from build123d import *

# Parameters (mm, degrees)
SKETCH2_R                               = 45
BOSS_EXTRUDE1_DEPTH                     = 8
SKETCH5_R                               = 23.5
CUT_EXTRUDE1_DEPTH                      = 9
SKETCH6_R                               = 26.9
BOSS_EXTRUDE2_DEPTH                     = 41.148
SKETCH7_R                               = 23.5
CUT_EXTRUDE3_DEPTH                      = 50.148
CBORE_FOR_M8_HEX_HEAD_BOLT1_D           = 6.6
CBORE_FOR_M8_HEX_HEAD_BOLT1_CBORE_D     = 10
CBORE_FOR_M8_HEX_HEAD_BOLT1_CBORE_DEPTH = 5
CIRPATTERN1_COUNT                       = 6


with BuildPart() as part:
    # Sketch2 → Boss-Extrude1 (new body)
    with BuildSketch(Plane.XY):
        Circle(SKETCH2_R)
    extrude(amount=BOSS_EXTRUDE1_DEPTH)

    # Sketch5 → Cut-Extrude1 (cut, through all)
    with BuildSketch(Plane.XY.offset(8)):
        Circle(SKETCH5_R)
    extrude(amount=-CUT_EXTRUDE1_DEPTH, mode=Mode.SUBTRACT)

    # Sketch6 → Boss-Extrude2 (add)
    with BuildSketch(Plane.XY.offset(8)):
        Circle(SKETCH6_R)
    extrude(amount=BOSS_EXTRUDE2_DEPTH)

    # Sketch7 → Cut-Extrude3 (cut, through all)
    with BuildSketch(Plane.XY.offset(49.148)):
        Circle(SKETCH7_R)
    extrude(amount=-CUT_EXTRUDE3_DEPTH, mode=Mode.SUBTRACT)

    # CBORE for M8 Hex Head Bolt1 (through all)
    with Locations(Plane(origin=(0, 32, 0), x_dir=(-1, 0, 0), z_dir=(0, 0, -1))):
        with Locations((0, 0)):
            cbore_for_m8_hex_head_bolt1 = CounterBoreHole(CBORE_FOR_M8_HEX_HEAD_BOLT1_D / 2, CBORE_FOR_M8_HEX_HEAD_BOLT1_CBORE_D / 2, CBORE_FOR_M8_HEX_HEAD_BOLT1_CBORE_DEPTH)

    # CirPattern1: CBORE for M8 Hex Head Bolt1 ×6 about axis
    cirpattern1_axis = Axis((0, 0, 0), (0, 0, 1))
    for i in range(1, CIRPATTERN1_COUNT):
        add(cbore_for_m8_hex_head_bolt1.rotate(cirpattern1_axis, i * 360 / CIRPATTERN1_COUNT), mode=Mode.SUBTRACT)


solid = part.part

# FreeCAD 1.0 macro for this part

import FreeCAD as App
import Part
import Sketcher
from FreeCAD import Vector

doc = App.newDocument("Part")
body = doc.addObject("PartDesign::Body", "Body")

# Sketch on XY plane
sketch1 = body.newObject("Sketcher::SketchObject", "Sketch")
sketch1.AttachmentSupport = (doc.getObject("XY_Plane"), [""])
sketch1.MapMode = "FlatFace"
sketch1.addGeometry(Part.Circle(Vector(0, 0, 0), Vector(0, 0, 1), 45), False)
sketch1.addConstraint([
    Sketcher.Constraint("Coincident", 0, 3, -1, 1),
    Sketcher.Constraint("Diameter", 0, 90.0),
])
pad1 = body.newObject("PartDesign::Pad", "Pad")
pad1.Profile = sketch1
pad1.Length = 8

# Sketch on XY plane
sketch2 = body.newObject("Sketcher::SketchObject", "Sketch001")
sketch2.AttachmentSupport = (doc.getObject("XY_Plane"), [""])
sketch2.MapMode = "FlatFace"
sketch2.AttachmentOffset = App.Placement(Vector(0, 0, 8), App.Rotation())
sketch2.addGeometry(Part.Circle(Vector(0, 0, 0), Vector(0, 0, 1), 24), False)
sketch2.addConstraint([
    Sketcher.Constraint("Coincident", 0, 3, -1, 1),
    Sketcher.Constraint("Diameter", 0, 47.0),
])
pocket1 = body.newObject("PartDesign::Pocket", "Pocket")
pocket1.Profile = sketch2
pocket1.Type = "ThroughAll"

# Sketch on XY plane
sketch3 = body.newObject("Sketcher::SketchObject", "Sketch002")
sketch3.AttachmentSupport = (doc.getObject("XY_Plane"), [""])
sketch3.MapMode = "FlatFace"
sketch3.AttachmentOffset = App.Placement(Vector(0, 0, 8), App.Rotation())
sketch3.addGeometry(Part.Circle(Vector(0, 0, 0), Vector(0, 0, 1), 27), False)
sketch3.addConstraint([
    Sketcher.Constraint("Coincident", 0, 3, -1, 1),
    Sketcher.Constraint("Diameter", 0, 53.8),
])
pad2 = body.newObject("PartDesign::Pad", "Pad001")
pad2.Profile = sketch3
pad2.Length = 41.148

# Sketch on XY plane
sketch4 = body.newObject("Sketcher::SketchObject", "Sketch003")
sketch4.AttachmentSupport = (doc.getObject("XY_Plane"), [""])
sketch4.MapMode = "FlatFace"
sketch4.AttachmentOffset = App.Placement(Vector(0, 0, 49.148), App.Rotation())
sketch4.addGeometry(Part.Circle(Vector(0, 0, 0), Vector(0, 0, 1), 24), False)
sketch4.addConstraint([
    Sketcher.Constraint("Coincident", 0, 3, -1, 1),
    Sketcher.Constraint("Diameter", 0, 47.0),
])
pocket2 = body.newObject("PartDesign::Pocket", "Pocket001")
pocket2.Profile = sketch4
pocket2.Type = "ThroughAll"

# Sketch on XY plane
sketch5 = body.newObject("Sketcher::SketchObject", "Sketch004")
sketch5.AttachmentSupport = (doc.getObject("XY_Plane"), [""])
sketch5.MapMode = "FlatFace"
sketch5.addGeometry(Part.Circle(Vector(0, 32, 0), Vector(0, 0, 1), 3.3), False)
sketch5.addConstraint([
    Sketcher.Constraint("PointOnObject", 0, 3, -2),
    Sketcher.Constraint("Diameter", 0, 6.6),
    Sketcher.Constraint("DistanceY", -1, 1, 0, 3, 32.0),
])
doc.recompute()
hole = body.newObject("PartDesign::Hole", "Hole")
hole.Profile = sketch5
hole.ThreadType = "None"
hole.Diameter = 6.6
hole.DepthType = "ThroughAll"
hole.HoleCutType = "Counterbore"
hole.HoleCutDiameter = 10
hole.HoleCutDepth = 5
hole.Reversed = True
doc.recompute()

polarpattern = body.newObject("PartDesign::PolarPattern", "PolarPattern")
polarpattern.Originals = [hole]
polarpattern.Axis = (doc.getObject("Z_Axis"), [""])
polarpattern.Angle = 360
polarpattern.Occurrences = 6
body.Tip = polarpattern

doc.recompute()
